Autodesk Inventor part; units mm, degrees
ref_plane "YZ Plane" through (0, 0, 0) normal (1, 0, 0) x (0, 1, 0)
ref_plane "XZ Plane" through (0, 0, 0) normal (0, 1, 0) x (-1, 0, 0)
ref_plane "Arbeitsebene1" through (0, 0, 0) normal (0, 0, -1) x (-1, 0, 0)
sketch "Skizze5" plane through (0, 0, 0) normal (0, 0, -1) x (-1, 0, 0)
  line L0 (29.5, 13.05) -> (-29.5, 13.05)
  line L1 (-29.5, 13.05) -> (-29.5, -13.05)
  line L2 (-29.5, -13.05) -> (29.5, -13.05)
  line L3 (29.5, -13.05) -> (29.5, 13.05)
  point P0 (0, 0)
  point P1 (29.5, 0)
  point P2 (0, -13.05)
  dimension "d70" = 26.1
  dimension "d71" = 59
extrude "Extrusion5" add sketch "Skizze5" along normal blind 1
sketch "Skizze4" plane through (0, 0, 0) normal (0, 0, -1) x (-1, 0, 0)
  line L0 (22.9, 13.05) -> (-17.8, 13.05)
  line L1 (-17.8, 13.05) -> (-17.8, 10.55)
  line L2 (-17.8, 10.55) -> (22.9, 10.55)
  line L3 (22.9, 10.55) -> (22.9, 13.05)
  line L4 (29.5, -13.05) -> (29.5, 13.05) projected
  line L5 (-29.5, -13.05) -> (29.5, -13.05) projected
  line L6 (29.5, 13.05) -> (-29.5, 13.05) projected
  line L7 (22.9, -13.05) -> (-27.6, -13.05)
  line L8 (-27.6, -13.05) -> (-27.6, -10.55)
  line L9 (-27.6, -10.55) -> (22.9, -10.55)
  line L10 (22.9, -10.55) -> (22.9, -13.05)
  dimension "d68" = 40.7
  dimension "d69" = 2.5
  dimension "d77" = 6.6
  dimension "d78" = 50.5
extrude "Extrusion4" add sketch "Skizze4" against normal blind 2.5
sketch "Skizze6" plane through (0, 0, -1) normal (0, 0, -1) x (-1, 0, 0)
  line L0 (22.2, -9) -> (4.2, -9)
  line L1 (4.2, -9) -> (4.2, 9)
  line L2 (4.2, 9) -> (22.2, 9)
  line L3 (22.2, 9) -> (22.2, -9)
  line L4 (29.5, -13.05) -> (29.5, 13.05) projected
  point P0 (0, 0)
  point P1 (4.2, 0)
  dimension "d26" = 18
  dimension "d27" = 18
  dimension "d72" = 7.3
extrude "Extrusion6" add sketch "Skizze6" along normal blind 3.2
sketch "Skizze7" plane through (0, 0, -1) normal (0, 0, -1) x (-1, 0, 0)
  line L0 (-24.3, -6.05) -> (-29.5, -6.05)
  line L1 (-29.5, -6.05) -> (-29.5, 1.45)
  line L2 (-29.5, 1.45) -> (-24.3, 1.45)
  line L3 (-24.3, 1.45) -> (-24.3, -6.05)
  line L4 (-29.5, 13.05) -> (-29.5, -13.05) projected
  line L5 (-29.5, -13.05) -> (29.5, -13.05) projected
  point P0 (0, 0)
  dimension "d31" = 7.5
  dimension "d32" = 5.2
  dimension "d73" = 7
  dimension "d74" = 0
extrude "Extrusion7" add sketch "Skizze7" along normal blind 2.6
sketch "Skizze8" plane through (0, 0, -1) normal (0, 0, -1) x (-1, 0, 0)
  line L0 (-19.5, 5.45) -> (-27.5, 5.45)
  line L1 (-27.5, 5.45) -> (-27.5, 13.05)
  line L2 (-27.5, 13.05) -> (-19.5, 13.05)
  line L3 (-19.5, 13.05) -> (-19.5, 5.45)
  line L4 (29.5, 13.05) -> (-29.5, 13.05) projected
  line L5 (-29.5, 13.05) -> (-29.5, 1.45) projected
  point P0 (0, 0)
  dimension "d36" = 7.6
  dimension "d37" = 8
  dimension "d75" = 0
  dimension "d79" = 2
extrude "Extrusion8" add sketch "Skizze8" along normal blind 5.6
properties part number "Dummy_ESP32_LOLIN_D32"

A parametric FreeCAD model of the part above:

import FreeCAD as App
import Part
import Sketcher
Q = App.Units.Quantity


def add_polygon(sketch, points):
    """Adds a closed chain of lines whose ends are joined by coincident constraints."""
    first, n = sketch.GeometryCount, len(points)
    for a, b in zip(points, points[1:] + points[:1]):
        sketch.addGeometry(Part.LineSegment(App.Vector(*a, 0), App.Vector(*b, 0)), False)
    for i in range(n):
        sketch.addConstraint(Sketcher.Constraint("Coincident", first + i, 2, first + (i + 1) % n, 1))

doc = App.newDocument("Part")
body = doc.addObject("PartDesign::Body", "Body")

# Sketch on XY plane
sketch1 = body.newObject("Sketcher::SketchObject", "Sketch")
sketch1.AttachmentSupport = (doc.getObject("XY_Plane"), [""])
sketch1.MapMode = "FlatFace"
add_polygon(sketch1, [(-30, -13), (-30, 13), (30, 13), (30, -13)])  # lines 0-3
sketch1.addConstraint(Sketcher.Constraint("Vertical", 0))
sketch1.addConstraint(Sketcher.Constraint("Horizontal", 1))
sketch1.addConstraint(Sketcher.Constraint("Vertical", 2))
sketch1.addConstraint(Sketcher.Constraint("Horizontal", 3))
sketch1.addConstraint(Sketcher.Constraint("Symmetric", 0, 2, 2, 2, -1, 1))
sketch1.addConstraint(Sketcher.Constraint("DistanceX", 1, 1, 1, 2, Q("59 mm")))
sketch1.addConstraint(Sketcher.Constraint("DistanceY", 0, 1, 0, 2, Q("26.1 mm")))
pad1 = body.newObject("PartDesign::Pad", "Pad")
pad1.Profile = sketch1
pad1.Length = 1
pad1.Reversed = True

# Sketch on XY plane
sketch2 = body.newObject("Sketcher::SketchObject", "Sketch001")
sketch2.AttachmentSupport = (doc.getObject("XY_Plane"), [""])
sketch2.MapMode = "FlatFace"
add_polygon(sketch2, [(-22.9, 10.6), (-22.9, 13.1), (17.8, 13.1), (17.8, 10.6)])  # lines 0-3
add_polygon(sketch2, [(27.6, -13.1), (-22.9, -13.1), (-22.9, -10.6), (27.6, -10.6)])  # lines 4-7
sketch2.addConstraint(Sketcher.Constraint("Vertical", 0))
sketch2.addConstraint(Sketcher.Constraint("Horizontal", 1))
sketch2.addConstraint(Sketcher.Constraint("Vertical", 2))
sketch2.addConstraint(Sketcher.Constraint("Horizontal", 3))
sketch2.addConstraint(Sketcher.Constraint("Horizontal", 4))
sketch2.addConstraint(Sketcher.Constraint("Vertical", 5))
sketch2.addConstraint(Sketcher.Constraint("Horizontal", 6))
sketch2.addConstraint(Sketcher.Constraint("Vertical", 7))
sketch2.addConstraint(Sketcher.Constraint("Symmetric", 0, 2, 4, 2, -1))
sketch2.addConstraint(Sketcher.Constraint("Equal", 2, 5))
sketch2.addConstraint(Sketcher.Constraint("DistanceX", 1, 1, 1, 2, Q("40.7 mm")))
sketch2.addConstraint(Sketcher.Constraint("DistanceX", 4, 2, 4, 1, Q("50.5 mm")))
sketch2.addConstraint(Sketcher.Constraint("DistanceY", 0, 1, 0, 2, Q("2.5 mm")))
sketch2.addConstraint(Sketcher.Constraint("DistanceX", 0, 2, -1, 1, Q("22.9 mm")))
sketch2.addConstraint(Sketcher.Constraint("DistanceY", 4, 2, 3, 2, Q("23.6 mm")))
pad2 = body.newObject("PartDesign::Pad", "Pad001")
pad2.Profile = sketch2
pad2.Length = 2.5

# Sketch on XY plane
sketch3 = body.newObject("Sketcher::SketchObject", "Sketch002")
sketch3.AttachmentSupport = (doc.getObject("XY_Plane"), [""])
sketch3.MapMode = "FlatFace"
sketch3.AttachmentOffset = App.Placement(App.Vector(0, 0, -1), App.Rotation())
add_polygon(sketch3, [(-4, -9), (-22, -9), (-22, 9), (-4, 9)])  # lines 0-3
sketch3.addConstraint(Sketcher.Constraint("Horizontal", 0))
sketch3.addConstraint(Sketcher.Constraint("Vertical", 1))
sketch3.addConstraint(Sketcher.Constraint("Horizontal", 2))
sketch3.addConstraint(Sketcher.Constraint("Vertical", 3))
sketch3.addConstraint(Sketcher.Constraint("Equal", 2, 1))
sketch3.addConstraint(Sketcher.Constraint("DistanceX", 0, 2, 0, 1, Q("18 mm")))
sketch3.addConstraint(Sketcher.Constraint("DistanceY", 0, 2, -1, 1, Q("9 mm")))
sketch3.addConstraint(Sketcher.Constraint("DistanceX", 0, 2, -1, 1, Q("22.2 mm")))
pad3 = body.newObject("PartDesign::Pad", "Pad002")
pad3.Profile = sketch3
pad3.Length = 3.2
pad3.Reversed = True

# Sketch on XY plane
sketch4 = body.newObject("Sketcher::SketchObject", "Sketch003")
sketch4.AttachmentSupport = (doc.getObject("XY_Plane"), [""])
sketch4.MapMode = "FlatFace"
sketch4.AttachmentOffset = App.Placement(App.Vector(0, 0, -1), App.Rotation())
add_polygon(sketch4, [(30, -6), (24, -6), (24, 1), (30, 1)])  # lines 0-3
sketch4.addConstraint(Sketcher.Constraint("Horizontal", 0))
sketch4.addConstraint(Sketcher.Constraint("Vertical", 1))
sketch4.addConstraint(Sketcher.Constraint("Horizontal", 2))
sketch4.addConstraint(Sketcher.Constraint("Vertical", 3))
sketch4.addConstraint(Sketcher.Constraint("DistanceX", 0, 2, 0, 1, Q("5.2 mm")))
sketch4.addConstraint(Sketcher.Constraint("DistanceY", 1, 1, 1, 2, Q("7.5 mm")))
sketch4.addConstraint(Sketcher.Constraint("DistanceX", -1, 1, 0, 2, Q("24.3 mm")))
sketch4.addConstraint(Sketcher.Constraint("DistanceY", 0, 2, -1, 1, Q("6.05 mm")))
pad4 = body.newObject("PartDesign::Pad", "Pad003")
pad4.Profile = sketch4
pad4.Length = 2.6
pad4.Reversed = True

# Sketch on XY plane
sketch5 = body.newObject("Sketcher::SketchObject", "Sketch004")
sketch5.AttachmentSupport = (doc.getObject("XY_Plane"), [""])
sketch5.MapMode = "FlatFace"
sketch5.AttachmentOffset = App.Placement(App.Vector(0, 0, -1), App.Rotation())
add_polygon(sketch5, [(28, 5), (20, 5), (20, 13), (28, 13)])  # lines 0-3
sketch5.addConstraint(Sketcher.Constraint("Horizontal", 0))
sketch5.addConstraint(Sketcher.Constraint("Vertical", 1))
sketch5.addConstraint(Sketcher.Constraint("Horizontal", 2))
sketch5.addConstraint(Sketcher.Constraint("Vertical", 3))
sketch5.addConstraint(Sketcher.Constraint("DistanceX", 0, 2, 0, 1, Q("8 mm")))
sketch5.addConstraint(Sketcher.Constraint("DistanceY", 1, 1, 1, 2, Q("7.6 mm")))
sketch5.addConstraint(Sketcher.Constraint("DistanceX", -1, 1, 0, 2, Q("19.5 mm")))
sketch5.addConstraint(Sketcher.Constraint("DistanceY", -1, 1, 0, 2, Q("5.45 mm")))
pad5 = body.newObject("PartDesign::Pad", "Pad004")
pad5.Profile = sketch5
pad5.Length = 5.6
pad5.Reversed = True

doc.recompute()
